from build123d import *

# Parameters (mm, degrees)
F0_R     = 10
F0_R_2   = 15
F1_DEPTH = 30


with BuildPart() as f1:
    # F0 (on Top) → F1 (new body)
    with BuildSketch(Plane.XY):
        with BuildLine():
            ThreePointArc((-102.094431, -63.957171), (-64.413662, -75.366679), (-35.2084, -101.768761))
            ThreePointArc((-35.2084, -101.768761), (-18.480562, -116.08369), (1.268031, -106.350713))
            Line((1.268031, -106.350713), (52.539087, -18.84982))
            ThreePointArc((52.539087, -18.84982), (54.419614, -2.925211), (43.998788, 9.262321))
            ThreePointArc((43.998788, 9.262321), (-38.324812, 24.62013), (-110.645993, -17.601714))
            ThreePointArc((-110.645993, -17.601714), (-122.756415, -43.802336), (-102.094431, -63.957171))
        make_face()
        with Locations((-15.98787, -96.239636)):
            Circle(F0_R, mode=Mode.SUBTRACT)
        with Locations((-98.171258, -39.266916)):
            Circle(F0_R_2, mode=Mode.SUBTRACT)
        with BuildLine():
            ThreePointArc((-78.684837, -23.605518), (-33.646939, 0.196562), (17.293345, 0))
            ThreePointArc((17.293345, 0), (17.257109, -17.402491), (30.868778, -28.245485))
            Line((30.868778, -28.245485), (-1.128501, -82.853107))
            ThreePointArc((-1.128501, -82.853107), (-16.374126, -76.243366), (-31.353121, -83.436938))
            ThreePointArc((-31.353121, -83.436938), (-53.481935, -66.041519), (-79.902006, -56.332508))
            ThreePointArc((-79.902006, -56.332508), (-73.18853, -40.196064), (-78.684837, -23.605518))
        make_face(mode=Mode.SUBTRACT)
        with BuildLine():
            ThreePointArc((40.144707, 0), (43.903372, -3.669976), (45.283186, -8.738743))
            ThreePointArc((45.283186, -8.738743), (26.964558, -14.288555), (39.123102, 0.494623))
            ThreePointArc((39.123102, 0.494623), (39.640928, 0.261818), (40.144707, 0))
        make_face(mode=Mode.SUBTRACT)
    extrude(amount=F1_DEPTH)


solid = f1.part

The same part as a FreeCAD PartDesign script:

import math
import FreeCAD as App
import Part
import Sketcher

V = App.Vector

doc = App.newDocument("Part")
body = doc.addObject("PartDesign::Body", "Body")

# Sketch on XY plane
sketch1 = body.newObject("Sketcher::SketchObject", "Sketch")
sketch1.AttachmentSupport = (doc.getObject("XY_Plane"), [""])
sketch1.MapMode = "FlatFace"
sketch1.addGeometry([
    Part.ArcOfCircle(Part.Circle(V(-108.704537, -153.714108, 0), V(0, 0, 1), 90.000007), math.radians(35.251774), math.radians(85.788084)),  # 0
    Part.ArcOfCircle(Part.Circle(V(-15.98787, -96.239636, 0), V(0, 0, 1), 20), math.radians(-163.951183), math.radians(-30.368126)),  # 1
    Part.LineSegment(V(1.268031, -106.350713, 0), V(52.539087, -18.84982, 0)),  # 2
    Part.ArcOfCircle(Part.Circle(V(35.283187, -8.738742, 0), V(0, 0, 1), 19.999999), math.radians(-30.368129), math.radians(64.16506)),  # 3
    Part.ArcOfCircle(Part.Circle(V(-17.78666, -93.609241, 0), V(0, 0, 1), 120), math.radians(59.01065), math.radians(140.698875)),  # 4
    Part.ArcOfCircle(Part.Circle(V(-98.171258, -39.266916, 0), V(0, 0, 1), 25), math.radians(119.933162), math.radians(260.971431)),  # 5
    Part.Circle(V(-15.98787, -96.239636, 0), V(0, 0, 1), 10),  # 6
    Part.Circle(V(-98.171258, -39.266916, 0), V(0, 0, 1), 15),  # 7
    Part.ArcOfCircle(Part.Circle(V(-98.171256, -39.266916, 0), V(0, 0, 1), 24.999999), math.radians(-43.049011), math.radians(38.789131)),  # 8
    Part.ArcOfCircle(Part.Circle(V(-8.569854, -101.764898, 0), V(0, 0, 1), 104.999998), math.radians(75.740371), math.radians(131.89455)),  # 9
    Part.ArcOfCircle(Part.Circle(V(35.283187, -8.738742, 0), V(0, 0, 1), 20), math.radians(154.091381), math.radians(257.248649)),  # 10
    Part.LineSegment(V(30.868778, -28.245485, 0), V(-1.128501, -82.853107, 0)),  # 11
    Part.ArcOfCircle(Part.Circle(V(-15.98787, -96.239636, 0), V(0, 0, 1), 20), math.radians(42.015101), math.radians(140.198121)),  # 12
    Part.ArcOfCircle(Part.Circle(V(-97.353993, -144.624226, 0), V(0, 0, 1), 89.999997), math.radians(42.832609), math.radians(78.818887)),  # 13
    Part.ArcOfCircle(Part.Circle(V(35.283253, -8.738619, 0), V(0, 0, 1), 9.99986), math.radians(60.912007), math.radians(67.418927)),  # 14
    Part.ArcOfCircle(Part.Circle(V(35.283185, -8.738743, 0), V(0, 0, 1), 10.000001), math.radians(-0.000001), math.radians(60.912014)),  # 15
    Part.ArcOfCircle(Part.Circle(V(35.283186, -8.738743, 0), V(0, 0, 1), 10), math.radians(67.418849), math.radians(359.999998)),  # 16
], False)
sketch1.addConstraint([
    Sketcher.Constraint("Coincident", 0, 1, 1, 1),
    Sketcher.Constraint("Coincident", 1, 2, 2, 1),
    Sketcher.Constraint("Coincident", 2, 2, 3, 1),
    Sketcher.Constraint("Coincident", 3, 2, 4, 1),
    Sketcher.Constraint("Coincident", 4, 2, 5, 1),
    Sketcher.Constraint("Coincident", 5, 2, 0, 2),
    Sketcher.Constraint("Coincident", 8, 2, 9, 2),
    Sketcher.Constraint("Coincident", 9, 1, 10, 1),
    Sketcher.Constraint("Coincident", 10, 2, 11, 1),
    Sketcher.Constraint("Coincident", 11, 2, 12, 1),
    Sketcher.Constraint("Coincident", 12, 2, 13, 1),
    Sketcher.Constraint("Coincident", 13, 2, 8, 1),
    Sketcher.Constraint("Coincident", 14, 1, 15, 2),
    Sketcher.Constraint("Coincident", 15, 1, 16, 2),
    Sketcher.Constraint("Coincident", 16, 1, 14, 2),
    Sketcher.Constraint("Coincident", 6, 3, 1, 3),
    Sketcher.Constraint("Coincident", 7, 3, 5, 3),
    Sketcher.Constraint("Coincident", 8, 3, 5, 3),
    Sketcher.Constraint("Coincident", 10, 3, 3, 3),
    Sketcher.Constraint("Coincident", 12, 3, 1, 3),
    Sketcher.Constraint("Coincident", 15, 3, 3, 3),
    Sketcher.Constraint("Coincident", 16, 3, 3, 3),
    Sketcher.Constraint("PointOnObject", 9, 1, -1),
    Sketcher.Constraint("PointOnObject", 14, 1, -1),
    Sketcher.Constraint("Diameter", 6, 20.0),
    Sketcher.Constraint("Diameter", 7, 30.0),
    Sketcher.Constraint("Radius", 1, 20.0),
    Sketcher.Constraint("Radius", 3, 19.999999),
    Sketcher.Constraint("Radius", 4, 120.0),
    Sketcher.Constraint("Radius", 5, 25.0),
    Sketcher.Constraint("Radius", 8, 24.999999),
    Sketcher.Constraint("Radius", 9, 104.999998),
    Sketcher.Constraint("Radius", 10, 20.0),
    Sketcher.Constraint("Radius", 12, 20.0),
    Sketcher.Constraint("Radius", 15, 10.000001),
    Sketcher.Constraint("Radius", 14, 9.99986),
    Sketcher.Constraint("Radius", 0, 90.000007),
    Sketcher.Constraint("Radius", 13, 89.999997),
    Sketcher.Constraint("DistanceY", 9, 3, -1, 1, 101.764898),
    Sketcher.Constraint("DistanceX", 0, 1, -1, 1, 35.2084),
    Sketcher.Constraint("DistanceX", 11, 2, -1, 1, 1.128501),
    Sketcher.Constraint("DistanceX", -1, 1, 16, 1, 39.123102),
    Sketcher.Constraint("DistanceY", 4, 3, 3, 3, 84.870499),
    Sketcher.Constraint("DistanceX", 6, 3, 1, 2, 17.255901),
    Sketcher.Constraint("DistanceX", 3, 3, 2, 2, 17.2559),
    Sketcher.Constraint("DistanceX", 3, 3, 3, 2, 8.715601),
    Sketcher.Constraint("DistanceY", 5, 3, 4, 2, 21.665202),
    Sketcher.Constraint("DistanceY", 8, 3, 8, 2, 15.661398),
    Sketcher.Constraint("DistanceY", 6, 3, 12, 2, 12.802698),
    Sketcher.Constraint("DistanceX", 1, 3, -1, 1, 15.98787),
    Sketcher.Constraint("DistanceX", 4, 3, -1, 1, 17.78666),
    Sketcher.Constraint("DistanceY", 4, 3, -1, 1, 93.609241),
    Sketcher.Constraint("DistanceY", 0, 1, -1, 1, 101.768761),
    Sketcher.Constraint("DistanceX", 5, 2, -1, 1, 102.094431),
    Sketcher.Constraint("DistanceX", -1, 1, 10, 2, 30.868778),
    Sketcher.Constraint("DistanceY", 13, 2, -1, 1, 56.332508),
    Sketcher.Constraint("DistanceY", 15, 1, -1, 1, 8.738743),
])
pad1 = body.newObject("PartDesign::Pad", "Pad")
pad1.Profile = sketch1
pad1.Length = 30

doc.recompute()
